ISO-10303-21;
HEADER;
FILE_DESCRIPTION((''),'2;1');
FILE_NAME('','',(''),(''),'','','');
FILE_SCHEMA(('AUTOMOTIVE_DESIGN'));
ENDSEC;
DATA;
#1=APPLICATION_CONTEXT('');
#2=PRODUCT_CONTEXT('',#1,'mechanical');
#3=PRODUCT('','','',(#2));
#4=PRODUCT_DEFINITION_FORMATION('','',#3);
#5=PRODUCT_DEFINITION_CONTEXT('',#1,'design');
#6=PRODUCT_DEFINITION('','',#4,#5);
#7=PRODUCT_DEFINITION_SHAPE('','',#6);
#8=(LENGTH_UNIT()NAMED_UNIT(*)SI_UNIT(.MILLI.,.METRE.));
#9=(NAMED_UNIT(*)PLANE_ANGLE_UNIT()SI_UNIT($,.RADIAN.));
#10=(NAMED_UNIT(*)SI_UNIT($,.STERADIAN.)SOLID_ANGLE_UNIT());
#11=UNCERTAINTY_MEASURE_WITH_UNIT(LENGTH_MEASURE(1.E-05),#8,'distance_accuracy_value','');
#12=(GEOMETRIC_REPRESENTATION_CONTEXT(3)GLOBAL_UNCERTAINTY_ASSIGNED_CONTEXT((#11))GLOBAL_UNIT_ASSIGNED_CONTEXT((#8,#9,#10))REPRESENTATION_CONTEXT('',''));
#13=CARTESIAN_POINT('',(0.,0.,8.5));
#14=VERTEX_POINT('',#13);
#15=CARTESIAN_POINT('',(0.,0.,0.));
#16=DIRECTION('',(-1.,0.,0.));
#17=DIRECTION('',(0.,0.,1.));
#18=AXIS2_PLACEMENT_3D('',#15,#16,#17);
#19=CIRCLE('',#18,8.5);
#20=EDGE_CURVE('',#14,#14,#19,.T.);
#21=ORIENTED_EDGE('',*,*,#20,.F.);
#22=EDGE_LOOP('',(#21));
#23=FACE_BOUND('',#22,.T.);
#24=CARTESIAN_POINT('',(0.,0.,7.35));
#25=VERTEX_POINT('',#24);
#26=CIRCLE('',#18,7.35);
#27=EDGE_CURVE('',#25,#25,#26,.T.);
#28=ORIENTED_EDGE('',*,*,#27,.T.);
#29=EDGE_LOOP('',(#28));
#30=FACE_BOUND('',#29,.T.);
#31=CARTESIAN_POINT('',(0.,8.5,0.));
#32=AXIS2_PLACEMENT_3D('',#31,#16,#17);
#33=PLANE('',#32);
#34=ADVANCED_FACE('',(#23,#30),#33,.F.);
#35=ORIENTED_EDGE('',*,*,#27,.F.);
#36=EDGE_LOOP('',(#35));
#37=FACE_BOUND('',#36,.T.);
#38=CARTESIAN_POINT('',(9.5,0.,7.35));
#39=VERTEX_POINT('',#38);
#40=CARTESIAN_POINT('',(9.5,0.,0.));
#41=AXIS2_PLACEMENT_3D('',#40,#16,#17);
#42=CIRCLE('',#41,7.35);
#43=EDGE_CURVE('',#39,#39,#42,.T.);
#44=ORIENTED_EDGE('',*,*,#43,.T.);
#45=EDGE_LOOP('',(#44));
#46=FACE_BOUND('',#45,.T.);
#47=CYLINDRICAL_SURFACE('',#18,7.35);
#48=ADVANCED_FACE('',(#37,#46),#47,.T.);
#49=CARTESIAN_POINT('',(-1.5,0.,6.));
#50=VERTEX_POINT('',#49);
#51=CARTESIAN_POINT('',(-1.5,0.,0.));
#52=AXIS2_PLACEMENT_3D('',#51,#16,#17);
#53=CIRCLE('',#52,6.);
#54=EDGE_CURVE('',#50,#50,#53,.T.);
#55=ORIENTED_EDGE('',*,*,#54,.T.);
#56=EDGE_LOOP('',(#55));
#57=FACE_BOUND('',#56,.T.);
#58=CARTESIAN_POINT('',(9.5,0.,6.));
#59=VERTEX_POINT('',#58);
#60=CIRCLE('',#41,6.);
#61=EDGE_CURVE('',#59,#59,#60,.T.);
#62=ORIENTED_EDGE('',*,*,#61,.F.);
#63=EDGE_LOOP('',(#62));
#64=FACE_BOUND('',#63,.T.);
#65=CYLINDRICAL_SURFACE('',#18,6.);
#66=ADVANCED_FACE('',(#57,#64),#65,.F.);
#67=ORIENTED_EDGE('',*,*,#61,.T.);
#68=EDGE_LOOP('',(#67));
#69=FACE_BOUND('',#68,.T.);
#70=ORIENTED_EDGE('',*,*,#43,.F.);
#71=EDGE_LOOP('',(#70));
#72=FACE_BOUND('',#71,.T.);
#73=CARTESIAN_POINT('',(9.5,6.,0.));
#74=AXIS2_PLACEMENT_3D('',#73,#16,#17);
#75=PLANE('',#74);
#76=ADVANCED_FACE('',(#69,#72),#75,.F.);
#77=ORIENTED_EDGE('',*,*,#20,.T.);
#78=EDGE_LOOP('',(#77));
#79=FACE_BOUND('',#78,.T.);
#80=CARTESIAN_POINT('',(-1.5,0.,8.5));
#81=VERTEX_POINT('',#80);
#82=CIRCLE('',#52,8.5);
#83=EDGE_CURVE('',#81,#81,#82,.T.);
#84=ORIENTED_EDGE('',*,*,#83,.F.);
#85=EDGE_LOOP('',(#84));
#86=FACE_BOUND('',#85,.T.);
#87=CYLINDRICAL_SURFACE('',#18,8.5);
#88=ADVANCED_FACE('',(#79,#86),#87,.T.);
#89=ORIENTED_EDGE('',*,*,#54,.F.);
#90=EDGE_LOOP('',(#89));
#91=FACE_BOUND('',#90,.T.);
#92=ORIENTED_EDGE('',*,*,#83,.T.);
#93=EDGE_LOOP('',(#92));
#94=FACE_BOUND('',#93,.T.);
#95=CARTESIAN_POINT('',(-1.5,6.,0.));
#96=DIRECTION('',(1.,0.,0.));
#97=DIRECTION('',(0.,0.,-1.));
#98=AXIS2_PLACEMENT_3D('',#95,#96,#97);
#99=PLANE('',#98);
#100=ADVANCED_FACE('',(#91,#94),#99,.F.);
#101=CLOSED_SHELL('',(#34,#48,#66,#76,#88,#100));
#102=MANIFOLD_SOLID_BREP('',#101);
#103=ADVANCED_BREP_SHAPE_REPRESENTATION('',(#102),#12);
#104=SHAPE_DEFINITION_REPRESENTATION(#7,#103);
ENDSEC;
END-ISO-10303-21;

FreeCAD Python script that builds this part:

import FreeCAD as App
import Part
import Sketcher


def add_polygon(sketch, points):
    """Adds a closed chain of lines whose ends are joined by coincident constraints."""
    first, n = sketch.GeometryCount, len(points)
    for a, b in zip(points, points[1:] + points[:1]):
        sketch.addGeometry(Part.LineSegment(App.Vector(*a, 0), App.Vector(*b, 0)), False)
    for i in range(n):
        sketch.addConstraint(Sketcher.Constraint("Coincident", first + i, 2, first + (i + 1) % n, 1))

doc = App.newDocument("Part")
body = doc.addObject("PartDesign::Body", "Body")

sketch1 = body.newObject("Sketcher::SketchObject", "Sketch")
sketch1.AttachmentSupport = (doc.getObject("XY_Plane"), [""])
sketch1.MapMode = "FlatFace"
add_polygon(sketch1, [(-1.5, 6), (9.5, 6), (9.5, 7.3), (0, 7.3), (0, 8.5), (-1.5, 8.5)])
sketch1.addConstraint(Sketcher.Constraint("Horizontal", 0))
sketch1.addConstraint(Sketcher.Constraint("Vertical", 1))
sketch1.addConstraint(Sketcher.Constraint("Horizontal", 2))
sketch1.addConstraint(Sketcher.Constraint("Vertical", 3))
sketch1.addConstraint(Sketcher.Constraint("Horizontal", 4))
sketch1.addConstraint(Sketcher.Constraint("Vertical", 5))
sketch1.addConstraint(Sketcher.Constraint("PointOnObject", 2, 2, -2))
sketch1.addConstraint(Sketcher.Constraint("DistanceX", 0, 1, 0, 2, 11.0))
sketch1.addConstraint(Sketcher.Constraint("DistanceX", 2, 2, 2, 1, 9.5))
sketch1.addConstraint(Sketcher.Constraint("DistanceY", 5, 2, 5, 1, 2.5))
sketch1.addConstraint(Sketcher.Constraint("DistanceY", -1, 1, 0, 2, 6.0))
sketch1.addConstraint(Sketcher.Constraint("DistanceY", 1, 1, 1, 2, 1.35))
revolution = body.newObject("PartDesign::Revolution", "Revolution")
revolution.Profile = sketch1
revolution.ReferenceAxis = (sketch1, ["H_Axis"])
revolution.Angle = 360

doc.recompute()
